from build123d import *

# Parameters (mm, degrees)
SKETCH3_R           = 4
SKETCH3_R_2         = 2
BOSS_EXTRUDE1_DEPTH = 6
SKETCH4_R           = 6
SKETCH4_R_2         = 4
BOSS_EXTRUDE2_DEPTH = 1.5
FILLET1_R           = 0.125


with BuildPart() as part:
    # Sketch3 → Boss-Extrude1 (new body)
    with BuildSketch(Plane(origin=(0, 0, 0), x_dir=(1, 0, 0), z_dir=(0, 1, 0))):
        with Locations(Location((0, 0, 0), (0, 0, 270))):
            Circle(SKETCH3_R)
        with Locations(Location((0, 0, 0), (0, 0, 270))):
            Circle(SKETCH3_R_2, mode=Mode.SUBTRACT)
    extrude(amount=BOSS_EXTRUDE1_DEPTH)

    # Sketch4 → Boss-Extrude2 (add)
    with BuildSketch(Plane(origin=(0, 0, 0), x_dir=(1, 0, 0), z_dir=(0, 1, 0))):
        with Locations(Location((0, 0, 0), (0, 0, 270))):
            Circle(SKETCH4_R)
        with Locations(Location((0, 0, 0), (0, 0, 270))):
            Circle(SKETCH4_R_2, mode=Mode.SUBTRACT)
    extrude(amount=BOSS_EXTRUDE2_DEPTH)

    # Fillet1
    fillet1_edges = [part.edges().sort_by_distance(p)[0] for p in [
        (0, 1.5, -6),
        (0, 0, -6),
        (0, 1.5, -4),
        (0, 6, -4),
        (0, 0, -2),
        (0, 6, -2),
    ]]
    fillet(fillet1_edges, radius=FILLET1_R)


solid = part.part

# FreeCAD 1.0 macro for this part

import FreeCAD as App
import Part
import Sketcher

V = App.Vector
Q = App.Units.Quantity


def edges_at(feature, points):
    """Names of the edges that pass closest to the given points."""
    edges = feature.Shape.Edges
    near = lambda p: min(range(len(edges)), key=lambda i: edges[i].distToShape(Part.Vertex(*p))[0])
    return sorted({f"Edge{near(p) + 1}" for p in points})

doc = App.newDocument("Part")
body = doc.addObject("PartDesign::Body", "Body")

# Sketch on XZ plane
sketch1 = body.newObject("Sketcher::SketchObject", "Sketch")
sketch1.AttachmentSupport = (doc.getObject("XZ_Plane"), [""])
sketch1.MapMode = "FlatFace"
sketch1.addGeometry(Part.Circle(V(0, 0, 0), V(0, 0, 1), 4), False)
sketch1.addGeometry(Part.Circle(V(0, 0, 0), V(0, 0, 1), 2), False)
sketch1.addConstraint(Sketcher.Constraint("Coincident", 0, 3, -1, 1))
sketch1.addConstraint(Sketcher.Constraint("Coincident", 1, 3, -1, 1))
sketch1.addConstraint(Sketcher.Constraint("Diameter", 0, Q("8 mm")))
sketch1.addConstraint(Sketcher.Constraint("Diameter", 1, Q("4 mm")))
pad1 = body.newObject("PartDesign::Pad", "Pad")
pad1.Profile = sketch1
pad1.Length = 6
pad1.Reversed = True

# Sketch on XZ plane
sketch2 = body.newObject("Sketcher::SketchObject", "Sketch001")
sketch2.AttachmentSupport = (doc.getObject("XZ_Plane"), [""])
sketch2.MapMode = "FlatFace"
sketch2.addGeometry(Part.Circle(V(0, 0, 0), V(0, 0, 1), 6), False)
sketch2.addGeometry(Part.Circle(V(0, 0, 0), V(0, 0, 1), 4), False)
sketch2.addConstraint(Sketcher.Constraint("Coincident", 0, 3, -1, 1))
sketch2.addConstraint(Sketcher.Constraint("Coincident", 1, 3, -1, 1))
sketch2.addConstraint(Sketcher.Constraint("Diameter", 0, Q("12 mm")))
sketch2.addConstraint(Sketcher.Constraint("Diameter", 1, Q("8 mm")))
pad2 = body.newObject("PartDesign::Pad", "Pad001")
pad2.Profile = sketch2
pad2.Length = 1.5
pad2.Reversed = True
doc.recompute()

fillet = body.newObject("PartDesign::Fillet", "Fillet")
fillet.Base = (pad2, edges_at(pad2, [
    (0, 1.5, -6),
    (0, 0, -6),
    (0, 1.5, -4),
    (0, 6, -4),
    (0, 0, -2),
    (0, 6, -2),
]))
fillet.Radius = 0.125

doc.recompute()
